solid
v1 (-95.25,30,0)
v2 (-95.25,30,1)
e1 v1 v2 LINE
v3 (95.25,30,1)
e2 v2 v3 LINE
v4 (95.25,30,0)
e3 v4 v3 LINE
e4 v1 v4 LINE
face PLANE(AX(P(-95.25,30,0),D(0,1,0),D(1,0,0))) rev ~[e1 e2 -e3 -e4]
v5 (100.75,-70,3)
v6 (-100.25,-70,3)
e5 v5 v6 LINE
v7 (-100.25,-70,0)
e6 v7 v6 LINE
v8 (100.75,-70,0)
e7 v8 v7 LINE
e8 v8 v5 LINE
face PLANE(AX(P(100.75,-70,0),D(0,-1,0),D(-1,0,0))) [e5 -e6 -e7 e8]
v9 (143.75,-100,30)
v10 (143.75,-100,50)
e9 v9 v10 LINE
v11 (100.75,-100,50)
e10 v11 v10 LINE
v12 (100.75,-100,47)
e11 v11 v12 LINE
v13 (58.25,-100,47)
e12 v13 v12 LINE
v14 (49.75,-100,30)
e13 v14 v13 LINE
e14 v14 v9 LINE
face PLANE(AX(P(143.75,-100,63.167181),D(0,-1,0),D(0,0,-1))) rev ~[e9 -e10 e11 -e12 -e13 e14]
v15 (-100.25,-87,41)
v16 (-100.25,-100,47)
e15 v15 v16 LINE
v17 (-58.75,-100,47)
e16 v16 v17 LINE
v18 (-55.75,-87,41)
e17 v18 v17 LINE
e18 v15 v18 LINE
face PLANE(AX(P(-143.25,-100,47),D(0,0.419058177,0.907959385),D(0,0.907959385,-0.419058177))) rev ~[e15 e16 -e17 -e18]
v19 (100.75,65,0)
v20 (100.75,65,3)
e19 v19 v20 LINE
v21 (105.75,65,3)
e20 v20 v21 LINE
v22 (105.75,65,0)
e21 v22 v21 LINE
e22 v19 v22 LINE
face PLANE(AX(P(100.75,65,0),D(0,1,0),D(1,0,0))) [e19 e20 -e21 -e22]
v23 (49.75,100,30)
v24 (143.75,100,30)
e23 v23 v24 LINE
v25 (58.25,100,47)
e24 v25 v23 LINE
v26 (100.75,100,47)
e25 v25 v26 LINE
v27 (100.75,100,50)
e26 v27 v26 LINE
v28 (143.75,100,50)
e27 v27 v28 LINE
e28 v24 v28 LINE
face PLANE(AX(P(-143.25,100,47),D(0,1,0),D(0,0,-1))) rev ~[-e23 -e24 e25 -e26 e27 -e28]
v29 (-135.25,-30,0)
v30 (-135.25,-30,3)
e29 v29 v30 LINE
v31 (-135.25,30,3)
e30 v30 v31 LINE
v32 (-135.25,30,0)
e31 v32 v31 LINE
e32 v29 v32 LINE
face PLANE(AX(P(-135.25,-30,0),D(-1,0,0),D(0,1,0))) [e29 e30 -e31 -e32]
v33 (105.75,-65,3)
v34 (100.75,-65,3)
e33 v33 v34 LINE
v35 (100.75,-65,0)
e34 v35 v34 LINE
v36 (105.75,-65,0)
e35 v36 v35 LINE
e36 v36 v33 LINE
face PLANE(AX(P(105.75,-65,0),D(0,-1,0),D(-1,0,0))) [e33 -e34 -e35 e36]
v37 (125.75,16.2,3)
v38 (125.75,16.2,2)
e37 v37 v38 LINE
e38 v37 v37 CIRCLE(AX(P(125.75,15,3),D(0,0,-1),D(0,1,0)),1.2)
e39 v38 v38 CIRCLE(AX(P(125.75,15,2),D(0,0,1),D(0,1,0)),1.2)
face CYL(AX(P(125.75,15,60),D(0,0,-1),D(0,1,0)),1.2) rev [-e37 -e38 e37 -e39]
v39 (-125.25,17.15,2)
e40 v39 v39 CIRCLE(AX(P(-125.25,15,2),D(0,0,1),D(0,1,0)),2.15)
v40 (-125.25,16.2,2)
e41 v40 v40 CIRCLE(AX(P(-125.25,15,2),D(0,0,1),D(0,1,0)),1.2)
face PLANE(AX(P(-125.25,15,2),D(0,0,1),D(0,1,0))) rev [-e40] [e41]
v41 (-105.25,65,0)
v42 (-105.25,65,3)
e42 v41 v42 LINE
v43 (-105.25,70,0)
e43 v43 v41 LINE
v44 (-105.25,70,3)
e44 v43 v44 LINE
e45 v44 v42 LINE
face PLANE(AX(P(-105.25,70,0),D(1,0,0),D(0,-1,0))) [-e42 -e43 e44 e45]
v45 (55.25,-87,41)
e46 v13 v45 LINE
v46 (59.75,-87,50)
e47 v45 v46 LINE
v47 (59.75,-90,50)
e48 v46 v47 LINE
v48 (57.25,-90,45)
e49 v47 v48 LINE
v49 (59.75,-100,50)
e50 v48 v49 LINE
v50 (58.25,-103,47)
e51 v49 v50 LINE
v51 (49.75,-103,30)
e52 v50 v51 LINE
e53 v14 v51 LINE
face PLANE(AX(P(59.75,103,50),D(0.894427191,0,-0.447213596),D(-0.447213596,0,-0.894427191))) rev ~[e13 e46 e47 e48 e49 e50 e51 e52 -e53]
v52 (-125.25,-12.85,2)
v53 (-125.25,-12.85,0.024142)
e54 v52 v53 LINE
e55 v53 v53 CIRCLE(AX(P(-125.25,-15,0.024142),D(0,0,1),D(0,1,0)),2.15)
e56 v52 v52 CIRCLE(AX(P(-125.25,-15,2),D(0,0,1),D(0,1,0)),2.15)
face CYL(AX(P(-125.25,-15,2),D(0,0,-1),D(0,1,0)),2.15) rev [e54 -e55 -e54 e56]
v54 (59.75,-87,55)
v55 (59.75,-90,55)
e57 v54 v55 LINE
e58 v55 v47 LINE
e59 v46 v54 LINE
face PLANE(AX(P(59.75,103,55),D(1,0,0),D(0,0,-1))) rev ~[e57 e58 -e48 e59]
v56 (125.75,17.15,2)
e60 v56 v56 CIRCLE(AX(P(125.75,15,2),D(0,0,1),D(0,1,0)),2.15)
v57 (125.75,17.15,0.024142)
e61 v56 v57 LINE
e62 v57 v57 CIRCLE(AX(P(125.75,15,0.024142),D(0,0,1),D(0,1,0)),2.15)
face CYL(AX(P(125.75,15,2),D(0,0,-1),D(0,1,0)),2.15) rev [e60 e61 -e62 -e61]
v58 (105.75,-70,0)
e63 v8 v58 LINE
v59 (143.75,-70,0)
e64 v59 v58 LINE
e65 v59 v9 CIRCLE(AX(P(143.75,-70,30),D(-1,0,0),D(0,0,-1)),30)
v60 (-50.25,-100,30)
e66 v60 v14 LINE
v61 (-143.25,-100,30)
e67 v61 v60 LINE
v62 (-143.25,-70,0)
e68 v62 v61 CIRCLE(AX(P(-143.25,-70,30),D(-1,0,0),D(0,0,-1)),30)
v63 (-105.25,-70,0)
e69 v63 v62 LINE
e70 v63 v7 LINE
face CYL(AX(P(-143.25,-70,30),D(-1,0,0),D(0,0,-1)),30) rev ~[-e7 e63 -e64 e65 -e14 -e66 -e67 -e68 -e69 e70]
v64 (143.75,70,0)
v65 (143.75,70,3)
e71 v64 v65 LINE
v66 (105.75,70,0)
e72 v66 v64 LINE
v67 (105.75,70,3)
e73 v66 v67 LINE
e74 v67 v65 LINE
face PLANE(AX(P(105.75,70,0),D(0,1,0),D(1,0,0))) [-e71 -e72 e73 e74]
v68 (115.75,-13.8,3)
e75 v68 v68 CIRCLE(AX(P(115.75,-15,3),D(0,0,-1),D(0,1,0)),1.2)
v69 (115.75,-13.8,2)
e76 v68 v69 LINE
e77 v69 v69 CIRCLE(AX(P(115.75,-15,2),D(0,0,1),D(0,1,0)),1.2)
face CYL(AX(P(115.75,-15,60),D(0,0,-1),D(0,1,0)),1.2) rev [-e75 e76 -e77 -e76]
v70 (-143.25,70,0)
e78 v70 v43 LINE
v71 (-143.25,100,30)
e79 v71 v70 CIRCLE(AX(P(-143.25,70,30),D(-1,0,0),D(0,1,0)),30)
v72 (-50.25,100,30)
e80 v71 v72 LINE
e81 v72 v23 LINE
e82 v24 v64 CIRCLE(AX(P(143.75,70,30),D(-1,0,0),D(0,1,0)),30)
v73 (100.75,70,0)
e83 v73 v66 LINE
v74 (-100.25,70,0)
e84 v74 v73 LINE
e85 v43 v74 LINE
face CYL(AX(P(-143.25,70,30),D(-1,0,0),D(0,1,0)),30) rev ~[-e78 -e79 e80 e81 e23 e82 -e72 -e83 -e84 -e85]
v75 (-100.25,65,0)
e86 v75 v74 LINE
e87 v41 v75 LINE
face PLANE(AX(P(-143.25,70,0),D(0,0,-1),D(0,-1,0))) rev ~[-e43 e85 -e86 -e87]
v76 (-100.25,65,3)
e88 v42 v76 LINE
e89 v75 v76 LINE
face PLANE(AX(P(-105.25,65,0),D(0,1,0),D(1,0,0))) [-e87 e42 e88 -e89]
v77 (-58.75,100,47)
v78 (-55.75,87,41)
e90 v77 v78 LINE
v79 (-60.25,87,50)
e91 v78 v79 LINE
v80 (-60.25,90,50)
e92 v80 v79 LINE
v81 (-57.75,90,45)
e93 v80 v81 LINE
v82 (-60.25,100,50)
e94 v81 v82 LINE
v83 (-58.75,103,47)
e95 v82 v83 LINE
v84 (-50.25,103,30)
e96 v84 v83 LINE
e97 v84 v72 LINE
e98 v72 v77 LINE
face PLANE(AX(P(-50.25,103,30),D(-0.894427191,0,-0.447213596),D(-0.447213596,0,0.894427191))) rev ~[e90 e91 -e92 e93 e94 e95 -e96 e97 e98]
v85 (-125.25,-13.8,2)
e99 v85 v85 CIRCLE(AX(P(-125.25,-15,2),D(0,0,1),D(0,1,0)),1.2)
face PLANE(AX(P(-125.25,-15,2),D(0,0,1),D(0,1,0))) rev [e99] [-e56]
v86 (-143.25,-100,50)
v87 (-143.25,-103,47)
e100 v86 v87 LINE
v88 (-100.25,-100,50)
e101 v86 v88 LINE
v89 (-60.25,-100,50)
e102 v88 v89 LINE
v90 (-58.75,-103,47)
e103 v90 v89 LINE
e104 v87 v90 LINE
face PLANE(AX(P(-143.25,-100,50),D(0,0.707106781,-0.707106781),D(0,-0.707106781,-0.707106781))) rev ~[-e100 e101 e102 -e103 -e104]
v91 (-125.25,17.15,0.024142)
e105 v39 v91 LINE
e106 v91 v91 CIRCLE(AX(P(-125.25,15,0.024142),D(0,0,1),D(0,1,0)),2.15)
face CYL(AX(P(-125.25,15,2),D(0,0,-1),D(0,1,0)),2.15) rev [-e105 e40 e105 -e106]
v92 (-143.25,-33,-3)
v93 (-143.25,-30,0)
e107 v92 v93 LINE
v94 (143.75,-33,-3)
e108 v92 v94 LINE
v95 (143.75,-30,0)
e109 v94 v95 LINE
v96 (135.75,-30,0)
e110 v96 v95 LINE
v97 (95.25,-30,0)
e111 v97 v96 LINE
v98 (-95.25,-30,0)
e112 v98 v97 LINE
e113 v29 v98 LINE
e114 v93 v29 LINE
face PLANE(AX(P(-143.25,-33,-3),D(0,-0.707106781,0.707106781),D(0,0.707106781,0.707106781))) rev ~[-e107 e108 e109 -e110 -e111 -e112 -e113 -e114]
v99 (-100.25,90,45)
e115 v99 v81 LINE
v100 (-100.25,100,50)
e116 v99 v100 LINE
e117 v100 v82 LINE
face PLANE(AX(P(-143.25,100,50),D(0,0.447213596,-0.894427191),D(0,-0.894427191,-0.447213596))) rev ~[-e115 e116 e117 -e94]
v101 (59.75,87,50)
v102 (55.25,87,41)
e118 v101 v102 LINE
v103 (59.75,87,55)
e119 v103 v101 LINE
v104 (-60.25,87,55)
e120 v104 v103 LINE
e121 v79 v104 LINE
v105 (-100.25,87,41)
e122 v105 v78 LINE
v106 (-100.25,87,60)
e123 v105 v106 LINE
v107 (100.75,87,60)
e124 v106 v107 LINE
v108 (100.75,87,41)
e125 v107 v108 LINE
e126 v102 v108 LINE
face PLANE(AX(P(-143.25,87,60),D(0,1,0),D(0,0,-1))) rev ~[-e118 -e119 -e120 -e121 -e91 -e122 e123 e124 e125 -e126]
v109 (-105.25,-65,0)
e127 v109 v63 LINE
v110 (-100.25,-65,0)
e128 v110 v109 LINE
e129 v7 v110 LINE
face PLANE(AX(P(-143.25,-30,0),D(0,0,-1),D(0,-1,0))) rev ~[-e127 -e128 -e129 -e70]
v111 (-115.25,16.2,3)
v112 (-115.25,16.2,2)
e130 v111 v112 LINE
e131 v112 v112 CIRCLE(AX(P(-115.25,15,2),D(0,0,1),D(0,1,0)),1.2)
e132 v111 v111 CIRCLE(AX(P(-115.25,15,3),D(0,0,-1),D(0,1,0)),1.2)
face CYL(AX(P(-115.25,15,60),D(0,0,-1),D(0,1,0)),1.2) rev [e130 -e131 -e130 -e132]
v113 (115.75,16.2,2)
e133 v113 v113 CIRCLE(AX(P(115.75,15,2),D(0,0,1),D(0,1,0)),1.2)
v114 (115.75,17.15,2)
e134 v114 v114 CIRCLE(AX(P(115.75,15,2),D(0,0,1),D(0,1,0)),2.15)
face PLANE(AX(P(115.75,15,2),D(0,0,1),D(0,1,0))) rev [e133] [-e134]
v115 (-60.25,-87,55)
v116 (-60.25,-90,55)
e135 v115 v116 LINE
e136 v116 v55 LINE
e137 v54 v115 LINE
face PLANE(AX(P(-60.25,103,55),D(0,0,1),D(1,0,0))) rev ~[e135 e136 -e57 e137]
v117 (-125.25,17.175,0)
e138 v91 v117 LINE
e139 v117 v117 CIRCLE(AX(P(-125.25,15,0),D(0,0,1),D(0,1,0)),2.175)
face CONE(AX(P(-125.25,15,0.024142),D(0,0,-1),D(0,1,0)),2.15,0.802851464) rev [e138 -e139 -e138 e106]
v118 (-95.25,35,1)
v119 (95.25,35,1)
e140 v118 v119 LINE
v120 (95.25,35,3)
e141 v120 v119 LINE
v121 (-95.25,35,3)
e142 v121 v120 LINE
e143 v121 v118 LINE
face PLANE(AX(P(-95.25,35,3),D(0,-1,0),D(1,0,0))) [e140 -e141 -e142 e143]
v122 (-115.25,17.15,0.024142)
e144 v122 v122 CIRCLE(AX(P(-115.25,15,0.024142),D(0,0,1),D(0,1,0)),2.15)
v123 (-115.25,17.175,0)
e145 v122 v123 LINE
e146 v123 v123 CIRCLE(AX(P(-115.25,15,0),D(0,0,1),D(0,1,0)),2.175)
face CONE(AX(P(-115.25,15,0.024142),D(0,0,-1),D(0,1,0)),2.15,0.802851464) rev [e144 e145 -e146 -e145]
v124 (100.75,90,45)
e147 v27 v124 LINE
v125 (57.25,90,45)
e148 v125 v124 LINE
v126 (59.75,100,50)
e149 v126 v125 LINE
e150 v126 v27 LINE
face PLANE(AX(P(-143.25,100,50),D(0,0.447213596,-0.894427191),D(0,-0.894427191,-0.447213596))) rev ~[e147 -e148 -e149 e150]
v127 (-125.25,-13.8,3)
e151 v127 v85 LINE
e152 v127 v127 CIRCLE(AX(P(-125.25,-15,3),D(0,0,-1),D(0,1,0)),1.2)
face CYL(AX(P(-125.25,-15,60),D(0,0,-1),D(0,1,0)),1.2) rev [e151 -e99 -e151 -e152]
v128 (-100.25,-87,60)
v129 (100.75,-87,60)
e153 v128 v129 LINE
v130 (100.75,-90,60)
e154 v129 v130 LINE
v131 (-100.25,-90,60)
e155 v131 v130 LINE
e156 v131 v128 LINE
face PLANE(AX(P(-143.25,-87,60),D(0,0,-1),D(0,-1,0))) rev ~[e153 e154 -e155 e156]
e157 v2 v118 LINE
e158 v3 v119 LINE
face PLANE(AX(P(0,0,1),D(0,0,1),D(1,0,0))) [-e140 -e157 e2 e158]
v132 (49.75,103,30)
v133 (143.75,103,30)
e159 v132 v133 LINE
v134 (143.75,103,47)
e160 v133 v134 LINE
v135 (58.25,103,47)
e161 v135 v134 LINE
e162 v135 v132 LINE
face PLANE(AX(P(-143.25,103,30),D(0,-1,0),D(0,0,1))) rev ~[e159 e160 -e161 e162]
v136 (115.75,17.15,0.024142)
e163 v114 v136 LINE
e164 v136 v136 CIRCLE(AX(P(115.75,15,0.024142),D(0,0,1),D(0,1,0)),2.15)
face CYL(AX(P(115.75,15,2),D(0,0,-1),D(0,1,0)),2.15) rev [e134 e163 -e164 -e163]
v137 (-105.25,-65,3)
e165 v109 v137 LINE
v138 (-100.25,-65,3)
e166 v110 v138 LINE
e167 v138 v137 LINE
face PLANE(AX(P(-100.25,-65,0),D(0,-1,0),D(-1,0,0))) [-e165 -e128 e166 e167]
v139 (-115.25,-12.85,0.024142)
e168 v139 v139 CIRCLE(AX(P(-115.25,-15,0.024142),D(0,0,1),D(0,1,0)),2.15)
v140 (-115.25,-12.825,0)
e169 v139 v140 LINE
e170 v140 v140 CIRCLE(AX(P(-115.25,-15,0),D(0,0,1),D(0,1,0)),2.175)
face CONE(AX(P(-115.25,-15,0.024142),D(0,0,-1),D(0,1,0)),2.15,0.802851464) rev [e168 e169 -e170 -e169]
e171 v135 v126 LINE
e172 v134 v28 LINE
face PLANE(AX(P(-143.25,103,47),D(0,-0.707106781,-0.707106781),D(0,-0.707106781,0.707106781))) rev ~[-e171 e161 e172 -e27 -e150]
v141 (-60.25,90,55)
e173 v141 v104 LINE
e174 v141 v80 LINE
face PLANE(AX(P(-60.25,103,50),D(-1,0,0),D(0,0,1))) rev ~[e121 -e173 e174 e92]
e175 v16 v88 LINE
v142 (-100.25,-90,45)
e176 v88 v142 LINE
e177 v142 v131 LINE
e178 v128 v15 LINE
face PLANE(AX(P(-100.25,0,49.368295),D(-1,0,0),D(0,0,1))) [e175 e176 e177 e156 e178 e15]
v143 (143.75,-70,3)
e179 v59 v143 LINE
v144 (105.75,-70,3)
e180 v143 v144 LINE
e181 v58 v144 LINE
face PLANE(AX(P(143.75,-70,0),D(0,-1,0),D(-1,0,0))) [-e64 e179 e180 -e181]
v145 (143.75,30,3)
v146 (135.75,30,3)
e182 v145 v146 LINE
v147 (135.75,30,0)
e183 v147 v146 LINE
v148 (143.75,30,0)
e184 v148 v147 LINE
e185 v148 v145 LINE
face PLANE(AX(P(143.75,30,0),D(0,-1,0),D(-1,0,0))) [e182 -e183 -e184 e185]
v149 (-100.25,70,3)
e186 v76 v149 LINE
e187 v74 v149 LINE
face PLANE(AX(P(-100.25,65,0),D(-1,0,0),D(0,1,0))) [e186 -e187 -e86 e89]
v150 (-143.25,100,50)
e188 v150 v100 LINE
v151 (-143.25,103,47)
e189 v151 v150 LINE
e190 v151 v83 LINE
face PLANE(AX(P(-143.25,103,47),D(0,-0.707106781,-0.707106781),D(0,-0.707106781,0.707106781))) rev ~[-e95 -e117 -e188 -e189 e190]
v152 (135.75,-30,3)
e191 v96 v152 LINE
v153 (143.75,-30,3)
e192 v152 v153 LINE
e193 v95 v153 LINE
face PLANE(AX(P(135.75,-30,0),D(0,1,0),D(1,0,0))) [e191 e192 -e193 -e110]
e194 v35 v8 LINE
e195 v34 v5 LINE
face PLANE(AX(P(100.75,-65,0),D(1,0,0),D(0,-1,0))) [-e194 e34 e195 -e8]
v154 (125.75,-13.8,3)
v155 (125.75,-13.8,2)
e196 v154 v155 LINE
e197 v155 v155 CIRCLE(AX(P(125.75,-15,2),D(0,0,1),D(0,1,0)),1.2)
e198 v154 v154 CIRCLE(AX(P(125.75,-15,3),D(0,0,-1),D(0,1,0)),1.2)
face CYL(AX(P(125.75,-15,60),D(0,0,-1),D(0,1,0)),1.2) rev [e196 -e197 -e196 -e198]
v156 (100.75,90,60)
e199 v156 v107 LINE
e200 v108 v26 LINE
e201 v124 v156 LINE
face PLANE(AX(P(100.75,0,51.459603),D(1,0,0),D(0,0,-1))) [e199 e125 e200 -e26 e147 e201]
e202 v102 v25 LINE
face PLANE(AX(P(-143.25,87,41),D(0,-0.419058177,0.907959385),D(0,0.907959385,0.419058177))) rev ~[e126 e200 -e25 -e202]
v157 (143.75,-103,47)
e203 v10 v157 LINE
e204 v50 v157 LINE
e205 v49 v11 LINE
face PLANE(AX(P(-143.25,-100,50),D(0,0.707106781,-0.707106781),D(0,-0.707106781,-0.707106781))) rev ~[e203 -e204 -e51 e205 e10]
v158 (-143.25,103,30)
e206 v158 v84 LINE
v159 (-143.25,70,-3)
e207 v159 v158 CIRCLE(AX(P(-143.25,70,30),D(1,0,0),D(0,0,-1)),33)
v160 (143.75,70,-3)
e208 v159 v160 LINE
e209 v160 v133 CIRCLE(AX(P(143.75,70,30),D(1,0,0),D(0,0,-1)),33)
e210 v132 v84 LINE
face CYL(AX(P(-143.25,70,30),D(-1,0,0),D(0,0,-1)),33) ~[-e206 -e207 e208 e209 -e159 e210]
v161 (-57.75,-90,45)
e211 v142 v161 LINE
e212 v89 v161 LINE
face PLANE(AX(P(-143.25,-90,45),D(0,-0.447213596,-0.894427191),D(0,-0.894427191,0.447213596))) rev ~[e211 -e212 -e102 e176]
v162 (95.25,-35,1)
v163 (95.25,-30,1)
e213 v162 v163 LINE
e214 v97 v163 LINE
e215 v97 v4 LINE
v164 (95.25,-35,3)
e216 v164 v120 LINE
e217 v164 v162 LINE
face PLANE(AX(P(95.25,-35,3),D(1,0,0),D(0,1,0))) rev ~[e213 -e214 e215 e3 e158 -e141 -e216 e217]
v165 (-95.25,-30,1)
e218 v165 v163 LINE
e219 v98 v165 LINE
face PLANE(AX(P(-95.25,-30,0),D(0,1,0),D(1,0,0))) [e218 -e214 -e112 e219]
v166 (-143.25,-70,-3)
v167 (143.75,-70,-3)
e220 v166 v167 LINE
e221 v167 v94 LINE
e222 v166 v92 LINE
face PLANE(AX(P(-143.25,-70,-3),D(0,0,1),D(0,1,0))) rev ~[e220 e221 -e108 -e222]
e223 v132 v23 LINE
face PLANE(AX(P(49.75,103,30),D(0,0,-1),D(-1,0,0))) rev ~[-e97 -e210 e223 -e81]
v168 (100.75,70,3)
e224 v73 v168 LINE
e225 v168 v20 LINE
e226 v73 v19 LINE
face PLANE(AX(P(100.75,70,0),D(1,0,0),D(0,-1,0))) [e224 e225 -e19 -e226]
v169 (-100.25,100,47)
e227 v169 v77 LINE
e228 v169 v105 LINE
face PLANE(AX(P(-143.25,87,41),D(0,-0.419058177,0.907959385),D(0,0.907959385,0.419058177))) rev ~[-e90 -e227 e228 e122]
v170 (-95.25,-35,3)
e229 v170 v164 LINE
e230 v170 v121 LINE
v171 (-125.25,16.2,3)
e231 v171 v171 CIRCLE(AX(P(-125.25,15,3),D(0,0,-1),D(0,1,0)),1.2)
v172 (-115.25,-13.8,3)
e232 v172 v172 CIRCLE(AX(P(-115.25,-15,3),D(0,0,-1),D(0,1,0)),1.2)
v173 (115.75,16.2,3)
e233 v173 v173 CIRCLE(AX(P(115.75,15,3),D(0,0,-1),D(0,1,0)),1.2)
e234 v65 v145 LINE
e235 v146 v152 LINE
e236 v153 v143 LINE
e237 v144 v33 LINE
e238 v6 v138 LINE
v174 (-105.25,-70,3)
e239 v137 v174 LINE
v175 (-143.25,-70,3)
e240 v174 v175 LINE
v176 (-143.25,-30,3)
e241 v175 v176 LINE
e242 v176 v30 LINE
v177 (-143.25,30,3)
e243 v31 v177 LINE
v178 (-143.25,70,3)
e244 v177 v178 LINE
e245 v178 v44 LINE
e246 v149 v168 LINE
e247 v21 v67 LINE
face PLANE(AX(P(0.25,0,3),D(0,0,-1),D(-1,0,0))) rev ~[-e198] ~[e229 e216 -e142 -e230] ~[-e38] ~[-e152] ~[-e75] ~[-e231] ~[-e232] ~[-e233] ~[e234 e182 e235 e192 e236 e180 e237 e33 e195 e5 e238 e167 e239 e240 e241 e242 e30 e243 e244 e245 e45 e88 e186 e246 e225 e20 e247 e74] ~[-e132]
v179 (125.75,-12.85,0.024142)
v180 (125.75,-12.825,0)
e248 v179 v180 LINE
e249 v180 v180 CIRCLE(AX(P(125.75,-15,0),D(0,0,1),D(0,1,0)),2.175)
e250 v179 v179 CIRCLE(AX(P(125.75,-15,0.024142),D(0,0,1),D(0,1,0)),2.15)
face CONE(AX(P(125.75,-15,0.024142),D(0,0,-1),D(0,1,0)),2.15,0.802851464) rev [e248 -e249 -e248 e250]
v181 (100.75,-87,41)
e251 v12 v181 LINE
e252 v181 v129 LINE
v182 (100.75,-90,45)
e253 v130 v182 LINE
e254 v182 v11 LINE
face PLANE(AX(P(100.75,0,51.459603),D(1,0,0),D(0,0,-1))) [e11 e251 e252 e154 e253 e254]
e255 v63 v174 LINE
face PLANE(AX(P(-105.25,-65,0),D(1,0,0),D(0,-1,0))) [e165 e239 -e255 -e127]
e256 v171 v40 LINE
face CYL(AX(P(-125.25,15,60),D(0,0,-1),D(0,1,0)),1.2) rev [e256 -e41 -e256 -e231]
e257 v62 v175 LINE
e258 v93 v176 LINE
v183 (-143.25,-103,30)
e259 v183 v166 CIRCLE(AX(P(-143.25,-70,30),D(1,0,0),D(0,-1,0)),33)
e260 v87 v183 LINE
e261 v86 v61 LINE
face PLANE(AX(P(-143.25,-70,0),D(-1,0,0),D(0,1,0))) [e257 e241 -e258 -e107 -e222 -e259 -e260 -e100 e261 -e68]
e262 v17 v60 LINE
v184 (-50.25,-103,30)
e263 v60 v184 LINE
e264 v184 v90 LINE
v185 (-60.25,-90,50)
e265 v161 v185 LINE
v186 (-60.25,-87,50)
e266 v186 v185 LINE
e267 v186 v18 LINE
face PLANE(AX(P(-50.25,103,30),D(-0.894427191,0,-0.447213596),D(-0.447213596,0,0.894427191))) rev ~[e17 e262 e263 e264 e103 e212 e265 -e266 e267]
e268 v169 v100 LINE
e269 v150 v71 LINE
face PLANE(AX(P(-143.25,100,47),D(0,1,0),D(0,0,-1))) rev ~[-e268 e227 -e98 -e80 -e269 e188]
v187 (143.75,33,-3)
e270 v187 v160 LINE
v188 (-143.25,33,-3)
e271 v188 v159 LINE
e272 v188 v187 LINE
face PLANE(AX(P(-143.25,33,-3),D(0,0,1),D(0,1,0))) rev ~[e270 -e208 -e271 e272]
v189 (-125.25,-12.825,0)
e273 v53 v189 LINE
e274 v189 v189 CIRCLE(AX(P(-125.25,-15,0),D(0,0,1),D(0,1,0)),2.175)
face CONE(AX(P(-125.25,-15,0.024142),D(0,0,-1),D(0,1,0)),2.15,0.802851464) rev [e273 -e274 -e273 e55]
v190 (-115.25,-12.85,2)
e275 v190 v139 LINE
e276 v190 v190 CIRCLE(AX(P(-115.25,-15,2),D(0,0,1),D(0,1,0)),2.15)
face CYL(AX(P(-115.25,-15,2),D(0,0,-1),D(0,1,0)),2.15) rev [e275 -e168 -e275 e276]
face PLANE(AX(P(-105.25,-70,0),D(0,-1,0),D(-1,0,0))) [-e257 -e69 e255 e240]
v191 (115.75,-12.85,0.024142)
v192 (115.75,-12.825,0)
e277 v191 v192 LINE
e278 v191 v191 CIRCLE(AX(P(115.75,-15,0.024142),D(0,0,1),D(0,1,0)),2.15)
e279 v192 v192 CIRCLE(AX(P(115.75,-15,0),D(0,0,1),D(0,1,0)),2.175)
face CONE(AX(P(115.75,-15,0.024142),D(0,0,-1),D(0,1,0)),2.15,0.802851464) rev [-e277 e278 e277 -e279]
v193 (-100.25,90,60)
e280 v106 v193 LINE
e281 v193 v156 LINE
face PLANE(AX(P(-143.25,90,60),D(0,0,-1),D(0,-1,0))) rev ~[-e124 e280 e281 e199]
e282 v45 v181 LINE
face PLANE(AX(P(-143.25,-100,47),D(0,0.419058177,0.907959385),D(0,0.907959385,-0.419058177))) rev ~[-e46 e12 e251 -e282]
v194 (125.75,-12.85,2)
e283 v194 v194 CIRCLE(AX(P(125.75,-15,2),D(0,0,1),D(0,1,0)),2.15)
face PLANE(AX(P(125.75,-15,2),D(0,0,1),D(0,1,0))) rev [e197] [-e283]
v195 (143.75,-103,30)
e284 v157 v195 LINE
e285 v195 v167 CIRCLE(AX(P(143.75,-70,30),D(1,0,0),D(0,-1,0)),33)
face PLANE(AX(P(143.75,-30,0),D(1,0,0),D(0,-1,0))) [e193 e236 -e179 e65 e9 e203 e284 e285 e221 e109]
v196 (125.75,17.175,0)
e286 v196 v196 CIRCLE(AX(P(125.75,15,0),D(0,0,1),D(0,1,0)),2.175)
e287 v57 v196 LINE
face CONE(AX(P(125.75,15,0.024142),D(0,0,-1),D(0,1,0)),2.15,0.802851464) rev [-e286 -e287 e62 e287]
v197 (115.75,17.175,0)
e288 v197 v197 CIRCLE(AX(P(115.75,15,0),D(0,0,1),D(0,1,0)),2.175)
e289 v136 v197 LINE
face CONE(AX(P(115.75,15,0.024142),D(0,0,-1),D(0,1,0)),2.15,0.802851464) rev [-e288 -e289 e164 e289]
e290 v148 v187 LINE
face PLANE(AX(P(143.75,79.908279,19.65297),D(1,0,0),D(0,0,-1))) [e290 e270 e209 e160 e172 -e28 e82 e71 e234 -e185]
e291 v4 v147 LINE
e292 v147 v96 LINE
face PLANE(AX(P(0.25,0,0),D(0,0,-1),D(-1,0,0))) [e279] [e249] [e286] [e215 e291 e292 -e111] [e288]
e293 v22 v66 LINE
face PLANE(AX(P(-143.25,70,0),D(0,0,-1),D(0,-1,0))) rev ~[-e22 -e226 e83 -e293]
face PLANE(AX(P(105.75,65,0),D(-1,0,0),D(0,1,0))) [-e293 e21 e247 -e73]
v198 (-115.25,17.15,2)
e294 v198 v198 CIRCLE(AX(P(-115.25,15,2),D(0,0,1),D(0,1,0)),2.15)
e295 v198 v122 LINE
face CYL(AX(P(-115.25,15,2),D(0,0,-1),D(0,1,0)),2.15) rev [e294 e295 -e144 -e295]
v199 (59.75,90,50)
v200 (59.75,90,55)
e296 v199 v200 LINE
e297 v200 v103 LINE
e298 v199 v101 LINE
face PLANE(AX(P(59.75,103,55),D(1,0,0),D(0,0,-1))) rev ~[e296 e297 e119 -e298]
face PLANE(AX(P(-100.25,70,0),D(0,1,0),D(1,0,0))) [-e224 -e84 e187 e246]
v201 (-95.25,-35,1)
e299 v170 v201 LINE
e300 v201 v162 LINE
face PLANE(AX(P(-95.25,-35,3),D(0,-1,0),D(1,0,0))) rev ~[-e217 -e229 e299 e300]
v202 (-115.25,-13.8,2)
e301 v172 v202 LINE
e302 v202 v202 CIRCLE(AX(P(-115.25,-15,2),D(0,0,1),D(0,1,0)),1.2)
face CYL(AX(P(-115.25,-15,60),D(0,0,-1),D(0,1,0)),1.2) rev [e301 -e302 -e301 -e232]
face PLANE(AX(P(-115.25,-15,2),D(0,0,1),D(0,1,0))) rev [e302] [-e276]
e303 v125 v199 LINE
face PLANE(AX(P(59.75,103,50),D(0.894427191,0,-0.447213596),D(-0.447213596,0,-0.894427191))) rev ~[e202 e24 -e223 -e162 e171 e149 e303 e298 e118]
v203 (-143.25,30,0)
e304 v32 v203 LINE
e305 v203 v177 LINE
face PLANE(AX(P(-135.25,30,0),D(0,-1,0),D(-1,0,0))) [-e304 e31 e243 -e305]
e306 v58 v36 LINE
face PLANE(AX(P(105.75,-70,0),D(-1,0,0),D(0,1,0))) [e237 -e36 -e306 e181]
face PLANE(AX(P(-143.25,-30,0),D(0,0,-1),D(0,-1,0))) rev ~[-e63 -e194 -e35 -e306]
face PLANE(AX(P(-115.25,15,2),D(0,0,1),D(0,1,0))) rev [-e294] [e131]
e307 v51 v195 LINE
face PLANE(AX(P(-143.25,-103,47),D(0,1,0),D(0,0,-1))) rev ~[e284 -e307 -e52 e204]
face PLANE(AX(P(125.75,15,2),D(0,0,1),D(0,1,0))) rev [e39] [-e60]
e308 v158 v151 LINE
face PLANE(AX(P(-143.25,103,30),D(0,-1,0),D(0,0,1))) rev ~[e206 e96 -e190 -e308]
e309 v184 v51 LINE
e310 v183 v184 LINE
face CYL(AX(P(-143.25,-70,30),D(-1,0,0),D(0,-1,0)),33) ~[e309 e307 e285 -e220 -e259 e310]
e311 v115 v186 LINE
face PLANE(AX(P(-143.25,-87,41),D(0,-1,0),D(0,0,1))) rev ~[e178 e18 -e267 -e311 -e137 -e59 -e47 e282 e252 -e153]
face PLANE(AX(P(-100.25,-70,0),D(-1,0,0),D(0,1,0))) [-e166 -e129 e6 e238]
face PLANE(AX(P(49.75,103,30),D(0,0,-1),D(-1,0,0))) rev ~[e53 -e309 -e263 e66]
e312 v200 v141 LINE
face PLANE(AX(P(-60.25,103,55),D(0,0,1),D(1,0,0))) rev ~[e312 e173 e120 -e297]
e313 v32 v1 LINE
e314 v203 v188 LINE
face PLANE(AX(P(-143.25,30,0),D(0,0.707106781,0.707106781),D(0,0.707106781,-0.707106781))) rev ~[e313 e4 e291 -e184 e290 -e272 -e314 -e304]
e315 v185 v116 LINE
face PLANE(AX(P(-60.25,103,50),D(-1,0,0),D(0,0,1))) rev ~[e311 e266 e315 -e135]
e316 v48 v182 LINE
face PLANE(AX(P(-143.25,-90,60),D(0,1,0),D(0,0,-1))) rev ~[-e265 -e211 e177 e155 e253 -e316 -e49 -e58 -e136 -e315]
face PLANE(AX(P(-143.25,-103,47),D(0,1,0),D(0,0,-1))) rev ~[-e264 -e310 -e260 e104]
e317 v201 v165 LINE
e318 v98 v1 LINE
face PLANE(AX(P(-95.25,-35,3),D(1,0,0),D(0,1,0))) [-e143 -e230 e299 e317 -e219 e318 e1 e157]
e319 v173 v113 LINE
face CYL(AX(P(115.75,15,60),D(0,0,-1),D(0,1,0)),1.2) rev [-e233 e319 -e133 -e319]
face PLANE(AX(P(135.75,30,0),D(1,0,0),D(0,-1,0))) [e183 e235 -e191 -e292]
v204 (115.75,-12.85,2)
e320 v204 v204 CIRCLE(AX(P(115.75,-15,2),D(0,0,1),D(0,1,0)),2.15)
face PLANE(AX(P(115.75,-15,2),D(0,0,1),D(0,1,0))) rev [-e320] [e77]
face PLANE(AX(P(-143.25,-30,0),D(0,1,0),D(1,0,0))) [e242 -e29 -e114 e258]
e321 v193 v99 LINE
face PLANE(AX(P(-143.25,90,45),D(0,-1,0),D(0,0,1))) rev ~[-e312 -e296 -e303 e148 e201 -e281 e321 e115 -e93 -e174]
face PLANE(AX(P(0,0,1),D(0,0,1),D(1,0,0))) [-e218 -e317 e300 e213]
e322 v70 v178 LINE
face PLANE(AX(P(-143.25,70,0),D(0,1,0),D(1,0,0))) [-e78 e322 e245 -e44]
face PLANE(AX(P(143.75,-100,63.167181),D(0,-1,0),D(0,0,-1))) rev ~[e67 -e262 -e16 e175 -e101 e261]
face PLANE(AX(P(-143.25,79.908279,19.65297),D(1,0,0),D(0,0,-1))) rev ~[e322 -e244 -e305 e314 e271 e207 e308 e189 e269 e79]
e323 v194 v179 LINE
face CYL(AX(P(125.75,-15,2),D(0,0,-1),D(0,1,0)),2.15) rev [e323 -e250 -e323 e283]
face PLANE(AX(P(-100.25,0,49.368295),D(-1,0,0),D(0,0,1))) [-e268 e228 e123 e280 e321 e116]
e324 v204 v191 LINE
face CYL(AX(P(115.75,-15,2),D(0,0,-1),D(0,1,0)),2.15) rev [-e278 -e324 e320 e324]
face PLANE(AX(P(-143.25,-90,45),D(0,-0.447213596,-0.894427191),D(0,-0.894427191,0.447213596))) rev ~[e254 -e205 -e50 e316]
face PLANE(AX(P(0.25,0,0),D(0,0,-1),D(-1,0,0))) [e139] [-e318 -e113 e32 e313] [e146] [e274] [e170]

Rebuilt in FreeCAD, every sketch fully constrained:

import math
import FreeCAD as App
import Part
import Sketcher
from FreeCAD import Vector
Q = App.Units.Quantity


def add_polygon(sketch, points):
    """Adds a closed chain of lines whose ends are joined by coincident constraints."""
    first, n = sketch.GeometryCount, len(points)
    for a, b in zip(points, points[1:] + points[:1]):
        sketch.addGeometry(Part.LineSegment(App.Vector(*a, 0), App.Vector(*b, 0)), False)
    for i in range(n):
        sketch.addConstraint(Sketcher.Constraint("Coincident", first + i, 2, first + (i + 1) % n, 1))

doc = App.newDocument("Part")
params = doc.addObject("Spreadsheet::Sheet", "Params")
for row, (alias, value) in enumerate([
    ("sketch1_width", "8 mm"),
    ("sketch1_width2", "38 mm"),
    ("sketch1_width3", "5 mm"),
    ("sketch1_width4", "201 mm"),
    ("sketch1_height", "40 mm"),
    ("pad1_length", "3 mm"),
    ("sketch2_radius", "30 mm"),
    ("sketch2_radius2", "33 mm"),
    ("sketch2_width", "40 mm"),
    ("sketch2_width2", "3 mm"),
    ("sketch2_height", "17 mm"),
    ("pad2_length", "287 mm"),
    ("sketch3_width", "200 mm"),
    ("pocket1_length", "43 mm"),
    ("sketch4_width", "200 mm"),
    ("pocket2_length", "43 mm"),
    ("sketch5_width", "120 mm"),
    ("sketch5_width2", "100 mm"),
    ("sketch5_height", "5 mm"),
    ("sketch6_height", "60 mm"),
    ("sketch6_height2", "58 mm"),
    ("sketch6_width", "1.2 mm"),
    ("sketch6_width2", "0.95 mm"),
    ("groove_angle", "360 deg"),
    ("linearpattern_pitch", "31.622777 mm"),
    ("linearpattern2_pitch", "10 mm"),
    ("linearpattern3_pitch", "242.860042 mm"),
    ("linearpattern4_pitch", "241 mm"),
    ("linearpattern5_pitch", "232.939906 mm"),
    ("linearpattern6_pitch", "231 mm"),
    ("linearpattern7_pitch", "30 mm"),
    ("sketch7_height", "70 mm"),
    ("sketch7_width", "190.5 mm"),
    ("pocket4_length", "2 mm"),
    ("sketch8_height", "60 mm"),
    ("sketch8_width", "190.5 mm"),
    ("pocket5_length", "1 mm"),
], start=1):
    params.set(f"A{row}", alias)
    params.set(f"B{row}", "=" + value)
    params.setAlias(f"B{row}", alias)

body = doc.addObject("PartDesign::Body", "Body")

sketch1 = body.newObject("Sketcher::SketchObject", "Sketch")
sketch1.AttachmentSupport = (doc.getObject("XY_Plane"), [""])
sketch1.MapMode = "FlatFace"
add_polygon(sketch1, [(-143, 70), (-143, 30), (-135, 30), (-135, -30), (-143, -30), (-143, -70), (-105, -70), (-105, -65), (-100, -65), (-100, -70), (101, -70), (101, -65), (106, -65), (106, -70), (144, -70), (144, -30), (136, -30), (136, 30), (144, 30), (144, 70), (106, 70), (106, 65), (101, 65), (101, 70), (-100, 70), (-100, 65), (-105, 65), (-105, 70)])
sketch1.addConstraint(Sketcher.Constraint("Vertical", 0))
sketch1.addConstraint(Sketcher.Constraint("Horizontal", 1))
sketch1.addConstraint(Sketcher.Constraint("Vertical", 2))
sketch1.addConstraint(Sketcher.Constraint("Horizontal", 3))
sketch1.addConstraint(Sketcher.Constraint("Vertical", 4))
sketch1.addConstraint(Sketcher.Constraint("Horizontal", 5))
sketch1.addConstraint(Sketcher.Constraint("Vertical", 6))
sketch1.addConstraint(Sketcher.Constraint("Horizontal", 7))
sketch1.addConstraint(Sketcher.Constraint("Vertical", 8))
sketch1.addConstraint(Sketcher.Constraint("Horizontal", 9))
sketch1.addConstraint(Sketcher.Constraint("Vertical", 10))
sketch1.addConstraint(Sketcher.Constraint("Horizontal", 11))
sketch1.addConstraint(Sketcher.Constraint("Vertical", 12))
sketch1.addConstraint(Sketcher.Constraint("Horizontal", 13))
sketch1.addConstraint(Sketcher.Constraint("Vertical", 14))
sketch1.addConstraint(Sketcher.Constraint("Horizontal", 15))
sketch1.addConstraint(Sketcher.Constraint("Vertical", 16))
sketch1.addConstraint(Sketcher.Constraint("Horizontal", 17))
sketch1.addConstraint(Sketcher.Constraint("Vertical", 18))
sketch1.addConstraint(Sketcher.Constraint("Horizontal", 19))
sketch1.addConstraint(Sketcher.Constraint("Vertical", 20))
sketch1.addConstraint(Sketcher.Constraint("Horizontal", 21))
sketch1.addConstraint(Sketcher.Constraint("Vertical", 22))
sketch1.addConstraint(Sketcher.Constraint("Horizontal", 23))
sketch1.addConstraint(Sketcher.Constraint("Vertical", 24))
sketch1.addConstraint(Sketcher.Constraint("Horizontal", 25))
sketch1.addConstraint(Sketcher.Constraint("Vertical", 26))
sketch1.addConstraint(Sketcher.Constraint("Horizontal", 27))
sketch1.addConstraint(Sketcher.Constraint("Symmetric", 0, 2, 3, 2, -1))
sketch1.addConstraint(Sketcher.Constraint("Symmetric", 14, 2, 17, 2, -1))
sketch1.addConstraint(Sketcher.Constraint("Symmetric", 12, 2, 19, 2, -1))
sketch1.addConstraint(Sketcher.Constraint("Symmetric", 10, 2, 21, 2, -1))
sketch1.addConstraint(Sketcher.Constraint("Symmetric", 8, 2, 23, 2, -1))
sketch1.addConstraint(Sketcher.Constraint("Symmetric", 6, 2, 25, 2, -1))
sketch1.addConstraint(Sketcher.Constraint("Horizontal", 5, 2, 8, 2))
sketch1.addConstraint(Sketcher.Constraint("Horizontal", 7, 2, 10, 2))
sketch1.addConstraint(Sketcher.Constraint("Horizontal", 9, 2, 12, 2))
sketch1.addConstraint(Sketcher.Constraint("Horizontal", 3, 2, 14, 2))
sketch1.addConstraint(Sketcher.Constraint("Horizontal", 23, 2, 26, 2))
sketch1.addConstraint(Sketcher.Constraint("Equal", 7, 11))
sketch1.addConstraint(Sketcher.Constraint("Equal", 5, 13))
sketch1.addConstraint(Sketcher.Constraint("Equal", 3, 15))
sketch1.addConstraint(Sketcher.Constraint("Equal", 25, 6))
sketch1.addConstraint(Sketcher.Constraint("DistanceX", 1, 1, 1, 2, Q("8 mm")))
sketch1.addConstraint(Sketcher.Constraint("DistanceX", 5, 1, 5, 2, Q("38 mm")))
sketch1.addConstraint(Sketcher.Constraint("DistanceX", 7, 1, 7, 2, Q("5 mm")))
sketch1.addConstraint(Sketcher.Constraint("DistanceX", 9, 1, 9, 2, Q("201 mm")))
sketch1.addConstraint(Sketcher.Constraint("DistanceY", 0, 2, 0, 1, Q("40 mm")))
sketch1.addConstraint(Sketcher.Constraint("DistanceY", 2, 2, 2, 1, Q("60 mm")))
sketch1.addConstraint(Sketcher.Constraint("DistanceX", 0, 2, -1, 1, Q("143.25 mm")))
sketch1.setExpression("Constraints[71]", "Params.sketch1_width")
sketch1.setExpression("Constraints[72]", "Params.sketch1_width2")
sketch1.setExpression("Constraints[73]", "Params.sketch1_width3")
sketch1.setExpression("Constraints[74]", "Params.sketch1_width4")
sketch1.setExpression("Constraints[75]", "Params.sketch1_height")
pad1 = body.newObject("PartDesign::Pad", "Pad")
pad1.Profile = sketch1
pad1.setExpression("Length", "Params.pad1_length")

sketch2 = body.newObject("Sketcher::SketchObject", "Sketch001")
sketch2.AttachmentSupport = (doc.getObject("YZ_Plane"), [""])
sketch2.MapMode = "FlatFace"
sketch2.AttachmentOffset = App.Placement(Vector(0, 0, -143.25), App.Rotation())
sketch2.addGeometry(Part.LineSegment(Vector(30, 0, 0), Vector(70, 0, 0)), False)
sketch2.addGeometry(Part.ArcOfCircle(Part.Circle(Vector(70, 30, 0), Vector(0, 0, 1), 30), math.radians(-90), math.radians(0)), False)
sketch2.addGeometry(Part.LineSegment(Vector(100, 30, 0), Vector(100, 47, 0)), False)
sketch2.addGeometry(Part.LineSegment(Vector(100, 47, 0), Vector(87, 41, 0)), False)
sketch2.addGeometry(Part.LineSegment(Vector(87, 41, 0), Vector(87, 60, 0)), False)
sketch2.addGeometry(Part.LineSegment(Vector(87, 60, 0), Vector(90, 60, 0)), False)
sketch2.addGeometry(Part.LineSegment(Vector(90, 60, 0), Vector(90, 45, 0)), False)
sketch2.addGeometry(Part.LineSegment(Vector(90, 45, 0), Vector(100, 50, 0)), False)
sketch2.addGeometry(Part.LineSegment(Vector(100, 50, 0), Vector(103, 47, 0)), False)
sketch2.addGeometry(Part.LineSegment(Vector(103, 47, 0), Vector(103, 30, 0)), False)
sketch2.addGeometry(Part.ArcOfCircle(Part.Circle(Vector(70, 30, 0), Vector(0, 0, 1), 33), math.radians(-90), math.radians(0)), False)
sketch2.addGeometry(Part.LineSegment(Vector(70, -3, 0), Vector(33, -3, 0)), False)
sketch2.addGeometry(Part.LineSegment(Vector(33, -3, 0), Vector(30, 0, 0)), False)
sketch2.addGeometry(Part.LineSegment(Vector(-100, 47, 0), Vector(-100, 30, 0)), False)
sketch2.addGeometry(Part.ArcOfCircle(Part.Circle(Vector(-70, 30, 0), Vector(0, 0, 1), 30), math.radians(180), math.radians(270)), False)
sketch2.addGeometry(Part.LineSegment(Vector(-70, 0, 0), Vector(-30, 0, 0)), False)
sketch2.addGeometry(Part.LineSegment(Vector(-30, 0, 0), Vector(-33, -3, 0)), False)
sketch2.addGeometry(Part.LineSegment(Vector(-33, -3, 0), Vector(-70, -3, 0)), False)
sketch2.addGeometry(Part.ArcOfCircle(Part.Circle(Vector(-70, 30, 0), Vector(0, 0, 1), 33), math.radians(-180), math.radians(-90)), False)
sketch2.addGeometry(Part.LineSegment(Vector(-103, 30, 0), Vector(-103, 47, 0)), False)
sketch2.addGeometry(Part.LineSegment(Vector(-103, 47, 0), Vector(-100, 50, 0)), False)
sketch2.addGeometry(Part.LineSegment(Vector(-100, 50, 0), Vector(-90, 45, 0)), False)
sketch2.addGeometry(Part.LineSegment(Vector(-90, 45, 0), Vector(-90, 60, 0)), False)
sketch2.addGeometry(Part.LineSegment(Vector(-90, 60, 0), Vector(-87, 60, 0)), False)
sketch2.addGeometry(Part.LineSegment(Vector(-87, 60, 0), Vector(-87, 41, 0)), False)
sketch2.addGeometry(Part.LineSegment(Vector(-87, 41, 0), Vector(-100, 47, 0)), False)
sketch2.addConstraint(Sketcher.Constraint("Tangent", 0, 2, 1, 1))
sketch2.addConstraint(Sketcher.Constraint("Tangent", 1, 2, 2, 1))
sketch2.addConstraint(Sketcher.Constraint("Coincident", 2, 2, 3, 1))
sketch2.addConstraint(Sketcher.Constraint("Coincident", 3, 2, 4, 1))
sketch2.addConstraint(Sketcher.Constraint("Coincident", 4, 2, 5, 1))
sketch2.addConstraint(Sketcher.Constraint("Coincident", 5, 2, 6, 1))
sketch2.addConstraint(Sketcher.Constraint("Coincident", 6, 2, 7, 1))
sketch2.addConstraint(Sketcher.Constraint("Coincident", 7, 2, 8, 1))
sketch2.addConstraint(Sketcher.Constraint("Coincident", 8, 2, 9, 1))
sketch2.addConstraint(Sketcher.Constraint("Tangent", 9, 2, 10, 2))
sketch2.addConstraint(Sketcher.Constraint("Tangent", 10, 1, 11, 1))
sketch2.addConstraint(Sketcher.Constraint("Coincident", 11, 2, 12, 1))
sketch2.addConstraint(Sketcher.Constraint("Coincident", 12, 2, 0, 1))
sketch2.addConstraint(Sketcher.Constraint("Tangent", 13, 2, 14, 1))
sketch2.addConstraint(Sketcher.Constraint("Tangent", 14, 2, 15, 1))
sketch2.addConstraint(Sketcher.Constraint("Coincident", 15, 2, 16, 1))
sketch2.addConstraint(Sketcher.Constraint("Coincident", 16, 2, 17, 1))
sketch2.addConstraint(Sketcher.Constraint("Tangent", 17, 2, 18, 2))
sketch2.addConstraint(Sketcher.Constraint("Tangent", 18, 1, 19, 1))
sketch2.addConstraint(Sketcher.Constraint("Coincident", 19, 2, 20, 1))
sketch2.addConstraint(Sketcher.Constraint("Coincident", 20, 2, 21, 1))
sketch2.addConstraint(Sketcher.Constraint("Coincident", 21, 2, 22, 1))
sketch2.addConstraint(Sketcher.Constraint("Coincident", 22, 2, 23, 1))
sketch2.addConstraint(Sketcher.Constraint("Coincident", 23, 2, 24, 1))
sketch2.addConstraint(Sketcher.Constraint("Coincident", 24, 2, 25, 1))
sketch2.addConstraint(Sketcher.Constraint("Coincident", 25, 2, 13, 1))
sketch2.addConstraint(Sketcher.Constraint("Horizontal", 0))
sketch2.addConstraint(Sketcher.Constraint("Vertical", 2))
sketch2.addConstraint(Sketcher.Constraint("Vertical", 4))
sketch2.addConstraint(Sketcher.Constraint("Horizontal", 5))
sketch2.addConstraint(Sketcher.Constraint("Vertical", 6))
sketch2.addConstraint(Sketcher.Constraint("Vertical", 9))
sketch2.addConstraint(Sketcher.Constraint("Horizontal", 11))
sketch2.addConstraint(Sketcher.Constraint("Vertical", 13))
sketch2.addConstraint(Sketcher.Constraint("Horizontal", 15))
sketch2.addConstraint(Sketcher.Constraint("Horizontal", 17))
sketch2.addConstraint(Sketcher.Constraint("Vertical", 19))
sketch2.addConstraint(Sketcher.Constraint("Vertical", 22))
sketch2.addConstraint(Sketcher.Constraint("Horizontal", 23))
sketch2.addConstraint(Sketcher.Constraint("Vertical", 24))
sketch2.addConstraint(Sketcher.Constraint("Coincident", 10, 3, 1, 3))
sketch2.addConstraint(Sketcher.Constraint("Coincident", 18, 3, 14, 3))
sketch2.addConstraint(Sketcher.Constraint("Equal", 1, 14))
sketch2.addConstraint(Sketcher.Constraint("Equal", 10, 18))
sketch2.addConstraint(Sketcher.Constraint("Symmetric", 0, 2, 14, 2, -1, 1))
sketch2.addConstraint(Sketcher.Constraint("Symmetric", 12, 2, 15, 2, -2))
sketch2.addConstraint(Sketcher.Constraint("Symmetric", 7, 2, 20, 2, -2))
sketch2.addConstraint(Sketcher.Constraint("Symmetric", 6, 2, 21, 2, -2))
sketch2.addConstraint(Sketcher.Constraint("Symmetric", 4, 2, 23, 2, -2))
sketch2.addConstraint(Sketcher.Constraint("Parallel", 8, 12))
sketch2.addConstraint(Sketcher.Constraint("Perpendicular", 12, 16))
sketch2.addConstraint(Sketcher.Constraint("Parallel", 16, 20))
sketch2.addConstraint(Sketcher.Constraint("Horizontal", 2, 2, 8, 2))
sketch2.addConstraint(Sketcher.Constraint("Horizontal", 8, 2, 19, 2))
sketch2.addConstraint(Sketcher.Constraint("Horizontal", 3, 2, 24, 2))
sketch2.addConstraint(Sketcher.Constraint("Horizontal", 19, 2, 25, 2))
sketch2.addConstraint(Sketcher.Constraint("Vertical", 2, 2, 7, 2))
sketch2.addConstraint(Sketcher.Constraint("Radius", 1, Q("30 mm")))
sketch2.addConstraint(Sketcher.Constraint("Radius", 10, Q("33 mm")))
sketch2.addConstraint(Sketcher.Constraint("DistanceX", 0, 1, 0, 2, Q("40 mm")))
sketch2.addConstraint(Sketcher.Constraint("DistanceX", 5, 1, 5, 2, Q("3 mm")))
sketch2.addConstraint(Sketcher.Constraint("DistanceY", 2, 1, 2, 2, Q("17 mm")))
sketch2.addConstraint(Sketcher.Constraint("DistanceY", 4, 1, 4, 2, Q("19 mm")))
sketch2.addConstraint(Sketcher.Constraint("DistanceY", 6, 2, 6, 1, Q("15 mm")))
sketch2.addConstraint(Sketcher.Constraint("DistanceX", -1, 1, 1, 3, Q("70 mm")))
sketch2.addConstraint(Sketcher.Constraint("DistanceX", -1, 1, 3, 2, Q("87 mm")))
sketch2.addConstraint(Sketcher.Constraint("DistanceY", -1, 1, 3, 2, Q("41 mm")))
sketch2.setExpression("Constraints[57]", "Params.sketch2_radius")
sketch2.setExpression("Constraints[58]", "Params.sketch2_radius2")
sketch2.setExpression("Constraints[59]", "Params.sketch2_width")
sketch2.setExpression("Constraints[60]", "Params.sketch2_width2")
sketch2.setExpression("Constraints[61]", "Params.sketch2_height")
pad2 = body.newObject("PartDesign::Pad", "Pad001")
pad2.Profile = sketch2
pad2.setExpression("Length", "Params.pad2_length")

sketch3 = body.newObject("Sketcher::SketchObject", "Sketch002")
sketch3.AttachmentSupport = (doc.getObject("YZ_Plane"), [""])
sketch3.MapMode = "FlatFace"
sketch3.AttachmentOffset = App.Placement(Vector(0, 0, -143.25), App.Rotation())
add_polygon(sketch3, [(100, 38), (-100, 38), (-100, 60), (100, 60)])
sketch3.addConstraint(Sketcher.Constraint("Horizontal", 0))
sketch3.addConstraint(Sketcher.Constraint("Vertical", 1))
sketch3.addConstraint(Sketcher.Constraint("Horizontal", 2))
sketch3.addConstraint(Sketcher.Constraint("Vertical", 3))
sketch3.addConstraint(Sketcher.Constraint("DistanceX", 0, 2, 0, 1, Q("200 mm")))
sketch3.addConstraint(Sketcher.Constraint("DistanceX", 0, 2, -1, 1, Q("100 mm")))
sketch3.addConstraint(Sketcher.Constraint("DistanceY", -1, 1, 0, 2, Q("38.5 mm")))
sketch3.addConstraint(Sketcher.Constraint("DistanceY", 1, 1, 1, 2, Q("21.736589 mm")))
sketch3.setExpression("Constraints[8]", "Params.sketch3_width")
pocket1 = body.newObject("PartDesign::Pocket", "Pocket")
pocket1.Profile = sketch3
pocket1.setExpression("Length", "Params.pocket1_length")
pocket1.Reversed = True

sketch4 = body.newObject("Sketcher::SketchObject", "Sketch003")
sketch4.AttachmentSupport = (doc.getObject("YZ_Plane"), [""])
sketch4.MapMode = "FlatFace"
sketch4.AttachmentOffset = App.Placement(Vector(0, 0, 143.75), App.Rotation())
add_polygon(sketch4, [(100, 63), (-100, 63), (-100, 40), (100, 40)])
sketch4.addConstraint(Sketcher.Constraint("Horizontal", 0))
sketch4.addConstraint(Sketcher.Constraint("Vertical", 1))
sketch4.addConstraint(Sketcher.Constraint("Horizontal", 2))
sketch4.addConstraint(Sketcher.Constraint("Vertical", 3))
sketch4.addConstraint(Sketcher.Constraint("DistanceX", 0, 2, 0, 1, Q("200 mm")))
sketch4.addConstraint(Sketcher.Constraint("DistanceX", 0, 2, -1, 1, Q("100 mm")))
sketch4.addConstraint(Sketcher.Constraint("DistanceY", 1, 2, 1, 1, Q("23.415155 mm")))
sketch4.addConstraint(Sketcher.Constraint("DistanceY", -1, 1, 0, 2, Q("63.167181 mm")))
sketch4.setExpression("Constraints[8]", "Params.sketch4_width")
pocket2 = body.newObject("PartDesign::Pocket", "Pocket001")
pocket2.Profile = sketch4
pocket2.setExpression("Length", "Params.pocket2_length")

sketch5 = body.newObject("Sketcher::SketchObject", "Sketch004")
sketch5.AttachmentSupport = (doc.getObject("XZ_Plane"), [""])
sketch5.MapMode = "FlatFace"
sketch5.AttachmentOffset = App.Placement(Vector(0, 0, -103), App.Rotation())
add_polygon(sketch5, [(-50, 30), (-60, 50), (-60, 55), (60, 55), (60, 50), (50, 30)])
sketch5.addConstraint(Sketcher.Constraint("Vertical", 1))
sketch5.addConstraint(Sketcher.Constraint("Horizontal", 2))
sketch5.addConstraint(Sketcher.Constraint("Vertical", 3))
sketch5.addConstraint(Sketcher.Constraint("Horizontal", 5))
sketch5.addConstraint(Sketcher.Constraint("Horizontal", 0, 2, 3, 2))
sketch5.addConstraint(Sketcher.Constraint("Equal", 0, 4))
sketch5.addConstraint(Sketcher.Constraint("DistanceX", 2, 1, 2, 2, Q("120 mm")))
sketch5.addConstraint(Sketcher.Constraint("DistanceX", 5, 2, 5, 1, Q("100 mm")))
sketch5.addConstraint(Sketcher.Constraint("DistanceY", 1, 1, 1, 2, Q("5 mm")))
sketch5.addConstraint(Sketcher.Constraint("DistanceY", -1, 1, 0, 2, Q("50 mm")))
sketch5.addConstraint(Sketcher.Constraint("DistanceY", -1, 1, 4, 2, Q("30 mm")))
sketch5.addConstraint(Sketcher.Constraint("DistanceX", 0, 2, -1, 1, Q("60.25 mm")))
sketch5.setExpression("Constraints[12]", "Params.sketch5_width")
sketch5.setExpression("Constraints[13]", "Params.sketch5_width2")
sketch5.setExpression("Constraints[14]", "Params.sketch5_height")
pocket3 = body.newObject("PartDesign::Pocket", "Pocket002")
pocket3.Profile = sketch5
pocket3.Type = "ThroughAll"
pocket3.Reversed = True

sketch6 = body.newObject("Sketcher::SketchObject", "Sketch005")
sketch6.AttachmentSupport = (doc.getObject("YZ_Plane"), [""])
sketch6.MapMode = "FlatFace"
sketch6.AttachmentOffset = App.Placement(Vector(0, 0, 115.75), App.Rotation())
add_polygon(sketch6, [(15, 60), (15, 0), (17.175, 0), (17.15, 0.024), (17.15, 2), (16.2, 2), (16.2, 60)])
sketch6.addGeometry(Part.LineSegment(Vector(15, 0, 0), Vector(15, 60, 0)), True)
sketch6.addConstraint(Sketcher.Constraint("Vertical", 0))
sketch6.addConstraint(Sketcher.Constraint("Horizontal", 1))
sketch6.addConstraint(Sketcher.Constraint("Vertical", 3))
sketch6.addConstraint(Sketcher.Constraint("Horizontal", 4))
sketch6.addConstraint(Sketcher.Constraint("Vertical", 5))
sketch6.addConstraint(Sketcher.Constraint("Horizontal", 6))
sketch6.addConstraint(Sketcher.Constraint("Vertical", 7))
sketch6.addConstraint(Sketcher.Constraint("Coincident", 7, 1, 0, 2))
sketch6.addConstraint(Sketcher.Constraint("PointOnObject", 0, 2, -1))
sketch6.addConstraint(Sketcher.Constraint("Horizontal", 5, 2, 7, 2))
sketch6.addConstraint(Sketcher.Constraint("DistanceY", 0, 2, 0, 1, Q("60 mm")))
sketch6.addConstraint(Sketcher.Constraint("DistanceY", 5, 1, 5, 2, Q("58 mm")))
sketch6.addConstraint(Sketcher.Constraint("Angle", 2, Q("136 deg")))
sketch6.addConstraint(Sketcher.Constraint("DistanceX", 6, 2, 6, 1, Q("1.2 mm")))
sketch6.addConstraint(Sketcher.Constraint("DistanceX", -1, 1, 0, 2, Q("15 mm")))
sketch6.addConstraint(Sketcher.Constraint("DistanceX", 4, 2, 4, 1, Q("0.95 mm")))
sketch6.addConstraint(Sketcher.Constraint("DistanceX", 1, 1, 1, 2, Q("2.175 mm")))
sketch6.setExpression("Constraints[17]", "Params.sketch6_height")
sketch6.setExpression("Constraints[18]", "Params.sketch6_height2")
sketch6.setExpression("Constraints[20]", "Params.sketch6_width")
sketch6.setExpression("Constraints[22]", "Params.sketch6_width2")
groove = body.newObject("PartDesign::Groove", "Groove")
groove.Profile = sketch6
groove.ReferenceAxis = (sketch6, ["Axis0"])
groove.setExpression("Angle", "Params.groove_angle")
doc.recompute()

datumline = body.newObject("PartDesign::Line", "DatumLine")
datumline.Placement = App.Placement(Vector(0, 0, 0), App.Rotation(Vector(0, 0, 1), Vector(0.316227766, -0.948683298, 0)))
linearpattern = body.newObject("PartDesign::LinearPattern", "LinearPattern")
linearpattern.Originals = [groove]
linearpattern.Direction = (datumline, [""])
linearpattern.Mode = "offset"
linearpattern.setExpression("Offset", "Params.linearpattern_pitch")
linearpattern.Occurrences = 2
body.Tip = linearpattern
doc.recompute()

linearpattern2 = body.newObject("PartDesign::LinearPattern", "LinearPattern001")
linearpattern2.Originals = [groove]
linearpattern2.Direction = (doc.getObject("X_Axis"), [""])
linearpattern2.Mode = "offset"
linearpattern2.setExpression("Offset", "Params.linearpattern2_pitch")
linearpattern2.Occurrences = 2
body.Tip = linearpattern2
doc.recompute()

datumline2 = body.newObject("PartDesign::Line", "DatumLine001")
datumline2.Placement = App.Placement(Vector(0, 0, 0), App.Rotation(Vector(0, 0, 1), Vector(-0.992341095, -0.123527937, 0)))
linearpattern3 = body.newObject("PartDesign::LinearPattern", "LinearPattern002")
linearpattern3.Originals = [groove]
linearpattern3.Direction = (datumline2, [""])
linearpattern3.Mode = "offset"
linearpattern3.setExpression("Offset", "Params.linearpattern3_pitch")
linearpattern3.Occurrences = 2
body.Tip = linearpattern3
doc.recompute()

linearpattern4 = body.newObject("PartDesign::LinearPattern", "LinearPattern003")
linearpattern4.Originals = [groove]
linearpattern4.Direction = (doc.getObject("X_Axis"), [""])
linearpattern4.Mode = "offset"
linearpattern4.setExpression("Offset", "Params.linearpattern4_pitch")
linearpattern4.Occurrences = 2
linearpattern4.Reversed = True
body.Tip = linearpattern4
doc.recompute()

datumline3 = body.newObject("PartDesign::Line", "DatumLine002")
datumline3.Placement = App.Placement(Vector(0, 0, 0), App.Rotation(Vector(0, 0, 1), Vector(-0.991672074, -0.128788581, 0)))
linearpattern5 = body.newObject("PartDesign::LinearPattern", "LinearPattern004")
linearpattern5.Originals = [groove]
linearpattern5.Direction = (datumline3, [""])
linearpattern5.Mode = "offset"
linearpattern5.setExpression("Offset", "Params.linearpattern5_pitch")
linearpattern5.Occurrences = 2
body.Tip = linearpattern5
doc.recompute()

linearpattern6 = body.newObject("PartDesign::LinearPattern", "LinearPattern005")
linearpattern6.Originals = [groove]
linearpattern6.Direction = (doc.getObject("X_Axis"), [""])
linearpattern6.Mode = "offset"
linearpattern6.setExpression("Offset", "Params.linearpattern6_pitch")
linearpattern6.Occurrences = 2
linearpattern6.Reversed = True
body.Tip = linearpattern6
doc.recompute()

linearpattern7 = body.newObject("PartDesign::LinearPattern", "LinearPattern006")
linearpattern7.Originals = [groove]
linearpattern7.Direction = (doc.getObject("Y_Axis"), [""])
linearpattern7.Mode = "offset"
linearpattern7.setExpression("Offset", "Params.linearpattern7_pitch")
linearpattern7.Occurrences = 2
linearpattern7.Reversed = True
body.Tip = linearpattern7

sketch7 = body.newObject("Sketcher::SketchObject", "Sketch006")
sketch7.AttachmentSupport = (doc.getObject("XY_Plane"), [""])
sketch7.MapMode = "FlatFace"
sketch7.AttachmentOffset = App.Placement(Vector(0, 0, 3), App.Rotation())
add_polygon(sketch7, [(-95, 35), (-95, -35), (95, -35), (95, 35)])
sketch7.addConstraint(Sketcher.Constraint("Vertical", 0))
sketch7.addConstraint(Sketcher.Constraint("Horizontal", 1))
sketch7.addConstraint(Sketcher.Constraint("Vertical", 2))
sketch7.addConstraint(Sketcher.Constraint("Horizontal", 3))
sketch7.addConstraint(Sketcher.Constraint("Symmetric", 0, 2, 2, 2, -1, 1))
sketch7.addConstraint(Sketcher.Constraint("DistanceY", 0, 2, 0, 1, Q("70 mm")))
sketch7.addConstraint(Sketcher.Constraint("DistanceX", 1, 1, 1, 2, Q("190.5 mm")))
sketch7.setExpression("Constraints[9]", "Params.sketch7_height")
sketch7.setExpression("Constraints[10]", "Params.sketch7_width")
pocket4 = body.newObject("PartDesign::Pocket", "Pocket003")
pocket4.Profile = sketch7
pocket4.setExpression("Length", "Params.pocket4_length")

sketch8 = body.newObject("Sketcher::SketchObject", "Sketch007")
sketch8.AttachmentSupport = (doc.getObject("XY_Plane"), [""])
sketch8.MapMode = "FlatFace"
add_polygon(sketch8, [(-95, 30), (-95, -30), (95, -30), (95, 30)])
sketch8.addConstraint(Sketcher.Constraint("Vertical", 0))
sketch8.addConstraint(Sketcher.Constraint("Horizontal", 1))
sketch8.addConstraint(Sketcher.Constraint("Vertical", 2))
sketch8.addConstraint(Sketcher.Constraint("Horizontal", 3))
sketch8.addConstraint(Sketcher.Constraint("Symmetric", 0, 2, 2, 2, -1, 1))
sketch8.addConstraint(Sketcher.Constraint("DistanceY", 0, 2, 0, 1, Q("60 mm")))
sketch8.addConstraint(Sketcher.Constraint("DistanceX", 1, 1, 1, 2, Q("190.5 mm")))
sketch8.setExpression("Constraints[9]", "Params.sketch8_height")
sketch8.setExpression("Constraints[10]", "Params.sketch8_width")
pocket5 = body.newObject("PartDesign::Pocket", "Pocket004")
pocket5.Profile = sketch8
pocket5.setExpression("Length", "Params.pocket5_length")
pocket5.Reversed = True

doc.recompute()
